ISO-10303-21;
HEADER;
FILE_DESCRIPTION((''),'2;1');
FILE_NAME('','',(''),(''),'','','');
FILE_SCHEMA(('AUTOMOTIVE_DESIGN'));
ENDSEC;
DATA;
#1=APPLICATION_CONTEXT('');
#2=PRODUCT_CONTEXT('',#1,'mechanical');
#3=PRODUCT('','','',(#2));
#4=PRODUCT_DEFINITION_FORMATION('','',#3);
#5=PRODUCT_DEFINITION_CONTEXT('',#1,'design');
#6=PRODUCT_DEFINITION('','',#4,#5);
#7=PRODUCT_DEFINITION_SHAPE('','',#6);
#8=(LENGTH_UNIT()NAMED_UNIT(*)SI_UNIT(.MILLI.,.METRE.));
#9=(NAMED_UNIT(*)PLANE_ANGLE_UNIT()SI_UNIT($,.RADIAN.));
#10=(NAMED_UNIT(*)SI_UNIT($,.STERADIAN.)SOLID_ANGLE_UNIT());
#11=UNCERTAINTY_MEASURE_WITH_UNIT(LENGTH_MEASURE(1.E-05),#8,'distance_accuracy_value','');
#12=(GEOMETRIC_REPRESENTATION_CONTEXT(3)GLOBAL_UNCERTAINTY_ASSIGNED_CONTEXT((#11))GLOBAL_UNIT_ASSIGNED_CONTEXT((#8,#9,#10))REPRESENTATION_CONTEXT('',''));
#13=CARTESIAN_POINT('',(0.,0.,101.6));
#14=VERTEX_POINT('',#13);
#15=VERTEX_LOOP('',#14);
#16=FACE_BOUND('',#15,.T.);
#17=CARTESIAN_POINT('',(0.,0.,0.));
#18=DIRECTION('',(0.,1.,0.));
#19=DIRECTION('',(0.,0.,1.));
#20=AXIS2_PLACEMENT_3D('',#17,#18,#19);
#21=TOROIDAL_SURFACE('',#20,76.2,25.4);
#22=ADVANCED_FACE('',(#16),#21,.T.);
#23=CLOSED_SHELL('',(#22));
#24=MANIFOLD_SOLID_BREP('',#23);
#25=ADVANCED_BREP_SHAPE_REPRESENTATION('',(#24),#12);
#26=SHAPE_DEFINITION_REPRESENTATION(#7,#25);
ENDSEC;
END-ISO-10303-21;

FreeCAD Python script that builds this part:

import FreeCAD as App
import Part
import Sketcher
from FreeCAD import Vector
Q = App.Units.Quantity

doc = App.newDocument("Part")
params = doc.addObject("Spreadsheet::Sheet", "Params")
for row, (alias, value) in enumerate([
    ("sketch1_diameter", "2 in"),
    ("revolution_angle", "360 deg"),
], start=1):
    params.set(f"A{row}", alias)
    params.set(f"B{row}", "=" + value)
    params.setAlias(f"B{row}", alias)

body = doc.addObject("PartDesign::Body", "Body")

# Sketch on XY plane
sketch1 = body.newObject("Sketcher::SketchObject", "Sketch")
sketch1.AttachmentSupport = (doc.getObject("XY_Plane"), [""])
sketch1.MapMode = "FlatFace"
sketch1.addGeometry(Part.Circle(Vector(76, 0, 0), Vector(0, 0, 1), 25), False)
sketch1.addConstraint(Sketcher.Constraint("PointOnObject", 0, 3, -1))
sketch1.addConstraint(Sketcher.Constraint("Diameter", 0, Q("2 in")))
sketch1.addConstraint(Sketcher.Constraint("DistanceX", -1, 1, 0, 3, Q("3 in")))
sketch1.setExpression("Constraints[1]", "Params.sketch1_diameter")
revolution = body.newObject("PartDesign::Revolution", "Revolution")
revolution.Profile = sketch1
revolution.ReferenceAxis = (sketch1, ["V_Axis"])
revolution.setExpression("Angle", "Params.revolution_angle")

doc.recompute()
